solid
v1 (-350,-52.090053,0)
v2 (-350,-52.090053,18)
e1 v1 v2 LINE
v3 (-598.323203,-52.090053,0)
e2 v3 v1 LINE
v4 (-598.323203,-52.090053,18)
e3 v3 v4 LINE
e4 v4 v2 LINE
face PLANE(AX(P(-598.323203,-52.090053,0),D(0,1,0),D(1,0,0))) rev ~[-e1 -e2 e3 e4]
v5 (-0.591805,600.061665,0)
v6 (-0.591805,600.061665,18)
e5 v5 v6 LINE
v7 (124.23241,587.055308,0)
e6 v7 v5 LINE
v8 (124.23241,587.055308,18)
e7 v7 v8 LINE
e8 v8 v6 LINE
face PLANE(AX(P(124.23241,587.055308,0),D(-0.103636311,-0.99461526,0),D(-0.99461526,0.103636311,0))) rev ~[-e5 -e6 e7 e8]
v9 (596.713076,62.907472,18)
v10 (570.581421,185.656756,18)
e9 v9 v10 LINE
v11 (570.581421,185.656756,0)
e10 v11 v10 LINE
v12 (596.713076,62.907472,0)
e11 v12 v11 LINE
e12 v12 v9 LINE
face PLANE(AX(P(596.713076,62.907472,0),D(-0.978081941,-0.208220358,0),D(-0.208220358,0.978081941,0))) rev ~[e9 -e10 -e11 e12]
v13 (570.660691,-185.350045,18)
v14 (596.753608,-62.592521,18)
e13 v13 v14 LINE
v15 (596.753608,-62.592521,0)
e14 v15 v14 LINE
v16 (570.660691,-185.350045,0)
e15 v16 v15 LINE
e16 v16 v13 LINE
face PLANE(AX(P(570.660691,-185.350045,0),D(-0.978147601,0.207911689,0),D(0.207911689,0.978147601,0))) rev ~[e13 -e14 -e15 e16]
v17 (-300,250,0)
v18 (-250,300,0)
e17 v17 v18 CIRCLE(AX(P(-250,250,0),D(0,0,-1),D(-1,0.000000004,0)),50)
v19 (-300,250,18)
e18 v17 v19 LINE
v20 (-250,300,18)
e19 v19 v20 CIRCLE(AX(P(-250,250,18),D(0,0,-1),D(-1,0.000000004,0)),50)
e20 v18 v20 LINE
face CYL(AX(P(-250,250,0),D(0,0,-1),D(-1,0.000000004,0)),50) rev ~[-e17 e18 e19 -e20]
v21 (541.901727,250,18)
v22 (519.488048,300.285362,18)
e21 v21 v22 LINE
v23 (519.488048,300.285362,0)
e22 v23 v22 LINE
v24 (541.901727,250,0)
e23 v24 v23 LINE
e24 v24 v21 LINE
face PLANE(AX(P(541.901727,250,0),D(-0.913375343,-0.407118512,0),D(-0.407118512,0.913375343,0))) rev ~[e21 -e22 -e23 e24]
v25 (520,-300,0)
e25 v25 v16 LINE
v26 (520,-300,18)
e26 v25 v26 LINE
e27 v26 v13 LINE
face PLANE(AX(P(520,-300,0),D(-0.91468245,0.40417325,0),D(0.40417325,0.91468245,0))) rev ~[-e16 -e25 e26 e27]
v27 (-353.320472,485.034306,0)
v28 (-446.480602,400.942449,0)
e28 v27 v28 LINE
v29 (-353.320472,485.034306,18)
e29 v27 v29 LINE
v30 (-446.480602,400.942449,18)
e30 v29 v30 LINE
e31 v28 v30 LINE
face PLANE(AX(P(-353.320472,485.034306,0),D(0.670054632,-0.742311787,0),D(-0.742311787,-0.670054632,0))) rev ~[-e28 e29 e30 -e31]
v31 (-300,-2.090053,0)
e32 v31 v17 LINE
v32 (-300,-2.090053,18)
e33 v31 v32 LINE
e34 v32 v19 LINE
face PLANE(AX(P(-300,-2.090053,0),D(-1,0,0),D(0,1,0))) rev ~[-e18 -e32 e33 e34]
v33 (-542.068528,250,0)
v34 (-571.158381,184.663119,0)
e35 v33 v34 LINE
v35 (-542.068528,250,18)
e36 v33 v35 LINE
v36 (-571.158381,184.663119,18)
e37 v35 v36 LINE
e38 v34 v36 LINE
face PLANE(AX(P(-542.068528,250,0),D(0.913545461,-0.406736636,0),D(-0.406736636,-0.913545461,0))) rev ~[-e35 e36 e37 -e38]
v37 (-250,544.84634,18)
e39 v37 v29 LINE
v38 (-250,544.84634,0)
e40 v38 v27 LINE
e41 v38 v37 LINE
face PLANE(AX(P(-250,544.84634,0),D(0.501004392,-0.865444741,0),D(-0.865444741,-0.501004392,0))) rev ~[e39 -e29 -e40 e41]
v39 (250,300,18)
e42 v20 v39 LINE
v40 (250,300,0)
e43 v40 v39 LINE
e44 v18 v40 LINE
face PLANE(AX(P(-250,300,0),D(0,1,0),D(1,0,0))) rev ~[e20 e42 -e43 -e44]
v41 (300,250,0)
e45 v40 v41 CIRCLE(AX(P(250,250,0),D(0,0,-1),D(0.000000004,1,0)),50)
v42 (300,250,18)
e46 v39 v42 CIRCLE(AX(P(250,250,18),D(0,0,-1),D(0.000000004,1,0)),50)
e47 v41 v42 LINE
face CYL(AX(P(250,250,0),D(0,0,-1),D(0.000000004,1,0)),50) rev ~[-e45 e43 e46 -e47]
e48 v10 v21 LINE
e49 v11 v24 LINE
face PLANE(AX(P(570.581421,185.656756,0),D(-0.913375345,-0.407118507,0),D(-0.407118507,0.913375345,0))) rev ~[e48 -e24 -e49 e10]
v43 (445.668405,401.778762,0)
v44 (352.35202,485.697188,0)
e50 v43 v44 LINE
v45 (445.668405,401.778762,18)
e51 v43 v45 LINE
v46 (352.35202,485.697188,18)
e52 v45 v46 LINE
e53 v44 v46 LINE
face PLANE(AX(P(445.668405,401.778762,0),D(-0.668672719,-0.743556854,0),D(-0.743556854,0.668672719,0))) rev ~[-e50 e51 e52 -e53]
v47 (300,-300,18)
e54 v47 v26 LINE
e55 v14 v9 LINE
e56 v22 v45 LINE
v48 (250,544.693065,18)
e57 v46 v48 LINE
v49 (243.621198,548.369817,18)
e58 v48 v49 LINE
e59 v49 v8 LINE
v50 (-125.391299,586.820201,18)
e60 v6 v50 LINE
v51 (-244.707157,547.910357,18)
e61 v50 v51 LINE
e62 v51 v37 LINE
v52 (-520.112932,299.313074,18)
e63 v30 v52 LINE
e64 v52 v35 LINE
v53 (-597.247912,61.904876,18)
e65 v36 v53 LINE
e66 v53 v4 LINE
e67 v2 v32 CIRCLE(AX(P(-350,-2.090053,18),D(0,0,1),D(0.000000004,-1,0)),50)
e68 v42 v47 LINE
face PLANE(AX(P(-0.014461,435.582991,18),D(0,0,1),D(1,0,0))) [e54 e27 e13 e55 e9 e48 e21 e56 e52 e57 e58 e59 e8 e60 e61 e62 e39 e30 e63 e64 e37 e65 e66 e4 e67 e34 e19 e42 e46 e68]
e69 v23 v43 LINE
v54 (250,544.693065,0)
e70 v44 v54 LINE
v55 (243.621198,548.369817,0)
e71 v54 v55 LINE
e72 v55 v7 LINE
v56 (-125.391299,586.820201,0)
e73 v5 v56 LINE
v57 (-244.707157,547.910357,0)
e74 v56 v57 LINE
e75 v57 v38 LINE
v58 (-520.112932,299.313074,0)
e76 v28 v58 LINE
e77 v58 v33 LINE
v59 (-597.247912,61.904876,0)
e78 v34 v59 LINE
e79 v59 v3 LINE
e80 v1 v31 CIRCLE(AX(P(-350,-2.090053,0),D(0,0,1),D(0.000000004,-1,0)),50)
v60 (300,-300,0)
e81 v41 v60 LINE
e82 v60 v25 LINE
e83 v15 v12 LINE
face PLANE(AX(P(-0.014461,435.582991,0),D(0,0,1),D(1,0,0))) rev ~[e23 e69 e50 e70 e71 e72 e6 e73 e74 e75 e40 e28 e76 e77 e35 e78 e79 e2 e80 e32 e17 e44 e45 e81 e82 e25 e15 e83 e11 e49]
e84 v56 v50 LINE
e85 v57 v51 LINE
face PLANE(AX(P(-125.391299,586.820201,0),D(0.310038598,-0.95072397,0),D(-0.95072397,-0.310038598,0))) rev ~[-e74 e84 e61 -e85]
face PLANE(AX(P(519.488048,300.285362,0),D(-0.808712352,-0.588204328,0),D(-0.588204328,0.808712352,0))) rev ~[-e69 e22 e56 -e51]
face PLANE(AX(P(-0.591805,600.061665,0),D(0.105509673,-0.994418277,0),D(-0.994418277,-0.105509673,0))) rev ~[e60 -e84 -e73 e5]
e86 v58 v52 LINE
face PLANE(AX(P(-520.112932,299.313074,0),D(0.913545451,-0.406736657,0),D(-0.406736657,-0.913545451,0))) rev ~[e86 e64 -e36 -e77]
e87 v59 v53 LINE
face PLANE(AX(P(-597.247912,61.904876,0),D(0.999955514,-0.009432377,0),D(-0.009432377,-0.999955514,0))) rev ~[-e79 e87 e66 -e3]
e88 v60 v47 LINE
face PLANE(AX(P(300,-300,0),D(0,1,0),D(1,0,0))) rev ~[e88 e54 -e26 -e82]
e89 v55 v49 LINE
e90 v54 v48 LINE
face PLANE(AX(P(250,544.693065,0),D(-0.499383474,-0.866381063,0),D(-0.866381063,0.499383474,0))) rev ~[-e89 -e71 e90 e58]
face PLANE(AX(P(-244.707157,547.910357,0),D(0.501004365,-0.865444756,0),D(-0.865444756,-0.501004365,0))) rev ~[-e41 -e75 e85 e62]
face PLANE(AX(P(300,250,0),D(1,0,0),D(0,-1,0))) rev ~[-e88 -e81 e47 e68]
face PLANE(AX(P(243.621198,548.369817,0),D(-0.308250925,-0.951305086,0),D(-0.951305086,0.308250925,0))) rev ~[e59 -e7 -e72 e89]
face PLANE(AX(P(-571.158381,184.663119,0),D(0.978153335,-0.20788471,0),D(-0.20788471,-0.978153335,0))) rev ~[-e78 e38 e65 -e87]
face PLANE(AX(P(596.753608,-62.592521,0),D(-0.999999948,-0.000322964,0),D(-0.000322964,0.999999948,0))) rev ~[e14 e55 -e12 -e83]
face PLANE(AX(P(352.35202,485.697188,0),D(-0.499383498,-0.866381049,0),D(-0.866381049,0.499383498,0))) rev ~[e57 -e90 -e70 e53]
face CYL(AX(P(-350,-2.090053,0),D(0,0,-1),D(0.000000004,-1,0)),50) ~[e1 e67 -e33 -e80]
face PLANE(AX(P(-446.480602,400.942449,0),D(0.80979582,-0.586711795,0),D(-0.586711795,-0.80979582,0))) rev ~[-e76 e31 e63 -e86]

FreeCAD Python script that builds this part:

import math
import FreeCAD as App
import Part
import Sketcher
from FreeCAD import Vector
Q = App.Units.Quantity

doc = App.newDocument("Part")
params = doc.addObject("Spreadsheet::Sheet", "Params")
for row, (alias, value) in enumerate([
    ("sketch1_radius", "50 mm"),
    ("sketch1_width", "500 mm"),
    ("sketch1_width2", "220 mm"),
    ("sketch1_height", "550 mm"),
    ("sketch1_length", "114 mm"),
    ("pad1_length", "18 mm"),
], start=1):
    params.set(f"A{row}", alias)
    params.set(f"B{row}", "=" + value)
    params.setAlias(f"B{row}", alias)

body = doc.addObject("PartDesign::Body", "Body")

# Sketch on XY plane
sketch1 = doc.addObject("Sketcher::SketchObject", "Sketch")
body.addObject(sketch1)
sketch1.AttachmentSupport = (doc.XY_Plane, [""])
sketch1.MapMode = "FlatFace"
sketch1.addGeometry(Part.LineSegment(Vector(-250, 300, 0), Vector(250, 300, 0)), False)
sketch1.addGeometry(Part.ArcOfCircle(Part.Circle(Vector(250, 250, 0), Vector(0, 0, 1), 50), math.radians(0), math.radians(90)), False)
sketch1.addGeometry(Part.LineSegment(Vector(300, 250, 0), Vector(300, -300, 0)), False)
sketch1.addGeometry(Part.LineSegment(Vector(300, -300, 0), Vector(520, -300, 0)), False)
sketch1.addGeometry(Part.LineSegment(Vector(520, -300, 0), Vector(570.660691, -185.350045, 0)), False)
sketch1.addGeometry(Part.LineSegment(Vector(570.660691, -185.350045, 0), Vector(596.753608, -62.592521, 0)), False)
sketch1.addGeometry(Part.LineSegment(Vector(596.753608, -62.592521, 0), Vector(596.713076, 62.907472, 0)), False)
sketch1.addGeometry(Part.LineSegment(Vector(596.713076, 62.907472, 0), Vector(570.581421, 185.656756, 0)), False)
sketch1.addGeometry(Part.LineSegment(Vector(570.581421, 185.656756, 0), Vector(541.901727, 250, 0)), False)
sketch1.addGeometry(Part.LineSegment(Vector(541.901727, 250, 0), Vector(519.488048, 300.285362, 0)), False)
sketch1.addGeometry(Part.LineSegment(Vector(519.488048, 300.285362, 0), Vector(445.668405, 401.778762, 0)), False)
sketch1.addGeometry(Part.LineSegment(Vector(445.668405, 401.778762, 0), Vector(352.35202, 485.697188, 0)), False)
sketch1.addGeometry(Part.LineSegment(Vector(352.35202, 485.697188, 0), Vector(250, 544.693065, 0)), False)
sketch1.addGeometry(Part.LineSegment(Vector(250, 544.693065, 0), Vector(243.621198, 548.369817, 0)), False)
sketch1.addGeometry(Part.LineSegment(Vector(243.621198, 548.369817, 0), Vector(124.23241, 587.055308, 0)), False)
sketch1.addGeometry(Part.LineSegment(Vector(124.23241, 587.055308, 0), Vector(-0.591805, 600.061665, 0)), False)
sketch1.addGeometry(Part.LineSegment(Vector(-0.591805, 600.061665, 0), Vector(-125.391299, 586.820201, 0)), False)
sketch1.addGeometry(Part.LineSegment(Vector(-125.391299, 586.820201, 0), Vector(-244.707157, 547.910357, 0)), False)
sketch1.addGeometry(Part.LineSegment(Vector(-244.707157, 547.910357, 0), Vector(-250, 544.84634, 0)), False)
sketch1.addGeometry(Part.LineSegment(Vector(-250, 544.84634, 0), Vector(-353.320472, 485.034306, 0)), False)
sketch1.addGeometry(Part.LineSegment(Vector(-353.320472, 485.034306, 0), Vector(-446.480602, 400.942449, 0)), False)
sketch1.addGeometry(Part.LineSegment(Vector(-446.480602, 400.942449, 0), Vector(-520.112932, 299.313074, 0)), False)
sketch1.addGeometry(Part.LineSegment(Vector(-520.112932, 299.313074, 0), Vector(-542.068528, 250, 0)), False)
sketch1.addGeometry(Part.LineSegment(Vector(-542.068528, 250, 0), Vector(-571.158381, 184.663119, 0)), False)
sketch1.addGeometry(Part.LineSegment(Vector(-571.158381, 184.663119, 0), Vector(-597.247912, 61.904876, 0)), False)
sketch1.addGeometry(Part.LineSegment(Vector(-597.247912, 61.904876, 0), Vector(-598.323203, -52.090053, 0)), False)
sketch1.addGeometry(Part.LineSegment(Vector(-598.323203, -52.090053, 0), Vector(-350, -52.090053, 0)), False)
sketch1.addGeometry(Part.ArcOfCircle(Part.Circle(Vector(-350, -2.090053, 0), Vector(0, 0, 1), 50), math.radians(-90), math.radians(0)), False)
sketch1.addGeometry(Part.LineSegment(Vector(-300, -2.090053, 0), Vector(-300, 250, 0)), False)
sketch1.addGeometry(Part.ArcOfCircle(Part.Circle(Vector(-250, 250, 0), Vector(0, 0, 1), 50), math.radians(90), math.radians(180)), False)
sketch1.addConstraint(Sketcher.Constraint("Tangent", 0, 2, 1, 2))
sketch1.addConstraint(Sketcher.Constraint("Tangent", 1, 1, 2, 1))
sketch1.addConstraint(Sketcher.Constraint("Coincident", 2, 2, 3, 1))
sketch1.addConstraint(Sketcher.Constraint("Coincident", 3, 2, 4, 1))
sketch1.addConstraint(Sketcher.Constraint("Coincident", 4, 2, 5, 1))
sketch1.addConstraint(Sketcher.Constraint("Coincident", 5, 2, 6, 1))
sketch1.addConstraint(Sketcher.Constraint("Coincident", 6, 2, 7, 1))
sketch1.addConstraint(Sketcher.Constraint("Coincident", 7, 2, 8, 1))
sketch1.addConstraint(Sketcher.Constraint("Coincident", 8, 2, 9, 1))
sketch1.addConstraint(Sketcher.Constraint("Coincident", 9, 2, 10, 1))
sketch1.addConstraint(Sketcher.Constraint("Coincident", 10, 2, 11, 1))
sketch1.addConstraint(Sketcher.Constraint("Coincident", 11, 2, 12, 1))
sketch1.addConstraint(Sketcher.Constraint("Coincident", 12, 2, 13, 1))
sketch1.addConstraint(Sketcher.Constraint("Coincident", 13, 2, 14, 1))
sketch1.addConstraint(Sketcher.Constraint("Coincident", 14, 2, 15, 1))
sketch1.addConstraint(Sketcher.Constraint("Coincident", 15, 2, 16, 1))
sketch1.addConstraint(Sketcher.Constraint("Coincident", 16, 2, 17, 1))
sketch1.addConstraint(Sketcher.Constraint("Coincident", 17, 2, 18, 1))
sketch1.addConstraint(Sketcher.Constraint("Coincident", 18, 2, 19, 1))
sketch1.addConstraint(Sketcher.Constraint("Coincident", 19, 2, 20, 1))
sketch1.addConstraint(Sketcher.Constraint("Coincident", 20, 2, 21, 1))
sketch1.addConstraint(Sketcher.Constraint("Coincident", 21, 2, 22, 1))
sketch1.addConstraint(Sketcher.Constraint("Coincident", 22, 2, 23, 1))
sketch1.addConstraint(Sketcher.Constraint("Coincident", 23, 2, 24, 1))
sketch1.addConstraint(Sketcher.Constraint("Coincident", 24, 2, 25, 1))
sketch1.addConstraint(Sketcher.Constraint("Coincident", 25, 2, 26, 1))
sketch1.addConstraint(Sketcher.Constraint("Tangent", 26, 2, 27, 1))
sketch1.addConstraint(Sketcher.Constraint("Tangent", 27, 2, 28, 1))
sketch1.addConstraint(Sketcher.Constraint("Tangent", 28, 2, 29, 2))
sketch1.addConstraint(Sketcher.Constraint("Tangent", 29, 1, 0, 1))
sketch1.addConstraint(Sketcher.Constraint("Horizontal", 0))
sketch1.addConstraint(Sketcher.Constraint("Vertical", 2))
sketch1.addConstraint(Sketcher.Constraint("Horizontal", 3))
sketch1.addConstraint(Sketcher.Constraint("Horizontal", 26))
sketch1.addConstraint(Sketcher.Constraint("Vertical", 28))
sketch1.addConstraint(Sketcher.Constraint("Equal", 1, 27))
sketch1.addConstraint(Sketcher.Constraint("Equal", 27, 29))
sketch1.addConstraint(Sketcher.Constraint("Parallel", 8, 9))
sketch1.addConstraint(Sketcher.Constraint("Parallel", 12, 13))
sketch1.addConstraint(Sketcher.Constraint("Parallel", 18, 19))
sketch1.addConstraint(Sketcher.Constraint("Parallel", 22, 23))
sketch1.addConstraint(Sketcher.Constraint("Horizontal", 1, 1, 8, 2))
sketch1.addConstraint(Sketcher.Constraint("Horizontal", 8, 2, 22, 2))
sketch1.addConstraint(Sketcher.Constraint("Vertical", 0, 2, 12, 2))
sketch1.addConstraint(Sketcher.Constraint("Vertical", 29, 3, 18, 2))
sketch1.addConstraint(Sketcher.Constraint("Equal", 5, 6))
sketch1.addConstraint(Sketcher.Constraint("Equal", 6, 7))
sketch1.addConstraint(Sketcher.Constraint("Equal", 7, 10))
sketch1.addConstraint(Sketcher.Constraint("Equal", 10, 11))
sketch1.addConstraint(Sketcher.Constraint("Equal", 11, 14))
sketch1.addConstraint(Sketcher.Constraint("Equal", 14, 15))
sketch1.addConstraint(Sketcher.Constraint("Equal", 15, 16))
sketch1.addConstraint(Sketcher.Constraint("Equal", 16, 17))
sketch1.addConstraint(Sketcher.Constraint("Equal", 17, 20))
sketch1.addConstraint(Sketcher.Constraint("Equal", 20, 21))
sketch1.addConstraint(Sketcher.Constraint("Equal", 21, 24))
sketch1.addConstraint(Sketcher.Constraint("Radius", 1, 50.0))
sketch1.addConstraint(Sketcher.Constraint("DistanceX", 0, 1, 0, 2, 500.0))
sketch1.addConstraint(Sketcher.Constraint("DistanceX", 3, 1, 3, 2, 220.0))
sketch1.addConstraint(Sketcher.Constraint("DistanceY", 2, 2, 2, 1, 550.0))
sketch1.addConstraint(Sketcher.Constraint("Angle", 5, Q("78 deg")))
sketch1.addConstraint(Sketcher.Constraint("Angle", 22, Q("-114.000001 deg")))
sketch1.addConstraint(Sketcher.Constraint("Distance", 25, 114.0))
sketch1.addConstraint(Sketcher.Constraint("DistanceX", -1, 1, 1, 3, 250.0))
sketch1.addConstraint(Sketcher.Constraint("DistanceY", -1, 1, 1, 3, 250.0))
sketch1.addConstraint(Sketcher.Constraint("Distance", 5, 125.5))
sketch1.addConstraint(Sketcher.Constraint("DistanceX", -1, 1, 13, 2, 243.621198))
sketch1.addConstraint(Sketcher.Constraint("DistanceX", 16, 2, -1, 1, 125.391299))
sketch1.addConstraint(Sketcher.Constraint("DistanceY", -1, 1, 16, 2, 586.820201))
sketch1.addConstraint(Sketcher.Constraint("DistanceX", 20, 2, -1, 1, 446.480602))
sketch1.addConstraint(Sketcher.Constraint("DistanceY", 9, 2, 10, 2, 101.4934))
sketch1.addConstraint(Sketcher.Constraint("DistanceY", 12, 2, 15, 2, 55.3686))
sketch1.addConstraint(Sketcher.Constraint("Distance", 18, 6.115749))
sketch1.addConstraint(Sketcher.Constraint("Distance", 19, 119.384251))
sketch1.addConstraint(Sketcher.Constraint("Distance", 22, 53.97988))
sketch1.addConstraint(Sketcher.Constraint("Distance", 23, 71.52012))
sketch1.addConstraint(Sketcher.Constraint("DistanceX", 26, 1, 26, 2, 248.323203))
sketch1.addConstraint(Sketcher.Constraint("DistanceY", 28, 1, 28, 2, 252.090053))
sketch1.addConstraint(Sketcher.Constraint("DistanceX", -1, 1, 4, 2, 570.660691))
sketch1.addConstraint(Sketcher.Constraint("DistanceY", 5, 2, -1, 1, 62.592521))
sketch1.addConstraint(Sketcher.Constraint("DistanceX", -1, 1, 7, 2, 570.581421))
sketch1.addConstraint(Sketcher.Constraint("DistanceX", -1, 1, 9, 2, 519.488048))
sketch1.addConstraint(Sketcher.Constraint("DistanceY", -1, 1, 9, 2, 300.285362))
sketch1.addConstraint(Sketcher.Constraint("DistanceX", -1, 1, 11, 2, 352.35202))
sketch1.addConstraint(Sketcher.Constraint("DistanceX", -1, 1, 14, 2, 124.23241))
sketch1.addConstraint(Sketcher.Constraint("DistanceY", -1, 1, 18, 2, 544.84634))
sketch1.addConstraint(Sketcher.Constraint("DistanceX", 6, 2, 5, 2, 0.040532))
sketch1.setExpression("Constraints[56]", "Params.sketch1_radius")
sketch1.setExpression("Constraints[57]", "Params.sketch1_width")
sketch1.setExpression("Constraints[58]", "Params.sketch1_width2")
sketch1.setExpression("Constraints[59]", "Params.sketch1_height")
sketch1.setExpression("Constraints[62]", "Params.sketch1_length")
pad1 = doc.addObject("PartDesign::Pad", "Pad")
body.addObject(pad1)
pad1.Profile = sketch1
pad1.setExpression("Length", "Params.pad1_length")

doc.recompute()
